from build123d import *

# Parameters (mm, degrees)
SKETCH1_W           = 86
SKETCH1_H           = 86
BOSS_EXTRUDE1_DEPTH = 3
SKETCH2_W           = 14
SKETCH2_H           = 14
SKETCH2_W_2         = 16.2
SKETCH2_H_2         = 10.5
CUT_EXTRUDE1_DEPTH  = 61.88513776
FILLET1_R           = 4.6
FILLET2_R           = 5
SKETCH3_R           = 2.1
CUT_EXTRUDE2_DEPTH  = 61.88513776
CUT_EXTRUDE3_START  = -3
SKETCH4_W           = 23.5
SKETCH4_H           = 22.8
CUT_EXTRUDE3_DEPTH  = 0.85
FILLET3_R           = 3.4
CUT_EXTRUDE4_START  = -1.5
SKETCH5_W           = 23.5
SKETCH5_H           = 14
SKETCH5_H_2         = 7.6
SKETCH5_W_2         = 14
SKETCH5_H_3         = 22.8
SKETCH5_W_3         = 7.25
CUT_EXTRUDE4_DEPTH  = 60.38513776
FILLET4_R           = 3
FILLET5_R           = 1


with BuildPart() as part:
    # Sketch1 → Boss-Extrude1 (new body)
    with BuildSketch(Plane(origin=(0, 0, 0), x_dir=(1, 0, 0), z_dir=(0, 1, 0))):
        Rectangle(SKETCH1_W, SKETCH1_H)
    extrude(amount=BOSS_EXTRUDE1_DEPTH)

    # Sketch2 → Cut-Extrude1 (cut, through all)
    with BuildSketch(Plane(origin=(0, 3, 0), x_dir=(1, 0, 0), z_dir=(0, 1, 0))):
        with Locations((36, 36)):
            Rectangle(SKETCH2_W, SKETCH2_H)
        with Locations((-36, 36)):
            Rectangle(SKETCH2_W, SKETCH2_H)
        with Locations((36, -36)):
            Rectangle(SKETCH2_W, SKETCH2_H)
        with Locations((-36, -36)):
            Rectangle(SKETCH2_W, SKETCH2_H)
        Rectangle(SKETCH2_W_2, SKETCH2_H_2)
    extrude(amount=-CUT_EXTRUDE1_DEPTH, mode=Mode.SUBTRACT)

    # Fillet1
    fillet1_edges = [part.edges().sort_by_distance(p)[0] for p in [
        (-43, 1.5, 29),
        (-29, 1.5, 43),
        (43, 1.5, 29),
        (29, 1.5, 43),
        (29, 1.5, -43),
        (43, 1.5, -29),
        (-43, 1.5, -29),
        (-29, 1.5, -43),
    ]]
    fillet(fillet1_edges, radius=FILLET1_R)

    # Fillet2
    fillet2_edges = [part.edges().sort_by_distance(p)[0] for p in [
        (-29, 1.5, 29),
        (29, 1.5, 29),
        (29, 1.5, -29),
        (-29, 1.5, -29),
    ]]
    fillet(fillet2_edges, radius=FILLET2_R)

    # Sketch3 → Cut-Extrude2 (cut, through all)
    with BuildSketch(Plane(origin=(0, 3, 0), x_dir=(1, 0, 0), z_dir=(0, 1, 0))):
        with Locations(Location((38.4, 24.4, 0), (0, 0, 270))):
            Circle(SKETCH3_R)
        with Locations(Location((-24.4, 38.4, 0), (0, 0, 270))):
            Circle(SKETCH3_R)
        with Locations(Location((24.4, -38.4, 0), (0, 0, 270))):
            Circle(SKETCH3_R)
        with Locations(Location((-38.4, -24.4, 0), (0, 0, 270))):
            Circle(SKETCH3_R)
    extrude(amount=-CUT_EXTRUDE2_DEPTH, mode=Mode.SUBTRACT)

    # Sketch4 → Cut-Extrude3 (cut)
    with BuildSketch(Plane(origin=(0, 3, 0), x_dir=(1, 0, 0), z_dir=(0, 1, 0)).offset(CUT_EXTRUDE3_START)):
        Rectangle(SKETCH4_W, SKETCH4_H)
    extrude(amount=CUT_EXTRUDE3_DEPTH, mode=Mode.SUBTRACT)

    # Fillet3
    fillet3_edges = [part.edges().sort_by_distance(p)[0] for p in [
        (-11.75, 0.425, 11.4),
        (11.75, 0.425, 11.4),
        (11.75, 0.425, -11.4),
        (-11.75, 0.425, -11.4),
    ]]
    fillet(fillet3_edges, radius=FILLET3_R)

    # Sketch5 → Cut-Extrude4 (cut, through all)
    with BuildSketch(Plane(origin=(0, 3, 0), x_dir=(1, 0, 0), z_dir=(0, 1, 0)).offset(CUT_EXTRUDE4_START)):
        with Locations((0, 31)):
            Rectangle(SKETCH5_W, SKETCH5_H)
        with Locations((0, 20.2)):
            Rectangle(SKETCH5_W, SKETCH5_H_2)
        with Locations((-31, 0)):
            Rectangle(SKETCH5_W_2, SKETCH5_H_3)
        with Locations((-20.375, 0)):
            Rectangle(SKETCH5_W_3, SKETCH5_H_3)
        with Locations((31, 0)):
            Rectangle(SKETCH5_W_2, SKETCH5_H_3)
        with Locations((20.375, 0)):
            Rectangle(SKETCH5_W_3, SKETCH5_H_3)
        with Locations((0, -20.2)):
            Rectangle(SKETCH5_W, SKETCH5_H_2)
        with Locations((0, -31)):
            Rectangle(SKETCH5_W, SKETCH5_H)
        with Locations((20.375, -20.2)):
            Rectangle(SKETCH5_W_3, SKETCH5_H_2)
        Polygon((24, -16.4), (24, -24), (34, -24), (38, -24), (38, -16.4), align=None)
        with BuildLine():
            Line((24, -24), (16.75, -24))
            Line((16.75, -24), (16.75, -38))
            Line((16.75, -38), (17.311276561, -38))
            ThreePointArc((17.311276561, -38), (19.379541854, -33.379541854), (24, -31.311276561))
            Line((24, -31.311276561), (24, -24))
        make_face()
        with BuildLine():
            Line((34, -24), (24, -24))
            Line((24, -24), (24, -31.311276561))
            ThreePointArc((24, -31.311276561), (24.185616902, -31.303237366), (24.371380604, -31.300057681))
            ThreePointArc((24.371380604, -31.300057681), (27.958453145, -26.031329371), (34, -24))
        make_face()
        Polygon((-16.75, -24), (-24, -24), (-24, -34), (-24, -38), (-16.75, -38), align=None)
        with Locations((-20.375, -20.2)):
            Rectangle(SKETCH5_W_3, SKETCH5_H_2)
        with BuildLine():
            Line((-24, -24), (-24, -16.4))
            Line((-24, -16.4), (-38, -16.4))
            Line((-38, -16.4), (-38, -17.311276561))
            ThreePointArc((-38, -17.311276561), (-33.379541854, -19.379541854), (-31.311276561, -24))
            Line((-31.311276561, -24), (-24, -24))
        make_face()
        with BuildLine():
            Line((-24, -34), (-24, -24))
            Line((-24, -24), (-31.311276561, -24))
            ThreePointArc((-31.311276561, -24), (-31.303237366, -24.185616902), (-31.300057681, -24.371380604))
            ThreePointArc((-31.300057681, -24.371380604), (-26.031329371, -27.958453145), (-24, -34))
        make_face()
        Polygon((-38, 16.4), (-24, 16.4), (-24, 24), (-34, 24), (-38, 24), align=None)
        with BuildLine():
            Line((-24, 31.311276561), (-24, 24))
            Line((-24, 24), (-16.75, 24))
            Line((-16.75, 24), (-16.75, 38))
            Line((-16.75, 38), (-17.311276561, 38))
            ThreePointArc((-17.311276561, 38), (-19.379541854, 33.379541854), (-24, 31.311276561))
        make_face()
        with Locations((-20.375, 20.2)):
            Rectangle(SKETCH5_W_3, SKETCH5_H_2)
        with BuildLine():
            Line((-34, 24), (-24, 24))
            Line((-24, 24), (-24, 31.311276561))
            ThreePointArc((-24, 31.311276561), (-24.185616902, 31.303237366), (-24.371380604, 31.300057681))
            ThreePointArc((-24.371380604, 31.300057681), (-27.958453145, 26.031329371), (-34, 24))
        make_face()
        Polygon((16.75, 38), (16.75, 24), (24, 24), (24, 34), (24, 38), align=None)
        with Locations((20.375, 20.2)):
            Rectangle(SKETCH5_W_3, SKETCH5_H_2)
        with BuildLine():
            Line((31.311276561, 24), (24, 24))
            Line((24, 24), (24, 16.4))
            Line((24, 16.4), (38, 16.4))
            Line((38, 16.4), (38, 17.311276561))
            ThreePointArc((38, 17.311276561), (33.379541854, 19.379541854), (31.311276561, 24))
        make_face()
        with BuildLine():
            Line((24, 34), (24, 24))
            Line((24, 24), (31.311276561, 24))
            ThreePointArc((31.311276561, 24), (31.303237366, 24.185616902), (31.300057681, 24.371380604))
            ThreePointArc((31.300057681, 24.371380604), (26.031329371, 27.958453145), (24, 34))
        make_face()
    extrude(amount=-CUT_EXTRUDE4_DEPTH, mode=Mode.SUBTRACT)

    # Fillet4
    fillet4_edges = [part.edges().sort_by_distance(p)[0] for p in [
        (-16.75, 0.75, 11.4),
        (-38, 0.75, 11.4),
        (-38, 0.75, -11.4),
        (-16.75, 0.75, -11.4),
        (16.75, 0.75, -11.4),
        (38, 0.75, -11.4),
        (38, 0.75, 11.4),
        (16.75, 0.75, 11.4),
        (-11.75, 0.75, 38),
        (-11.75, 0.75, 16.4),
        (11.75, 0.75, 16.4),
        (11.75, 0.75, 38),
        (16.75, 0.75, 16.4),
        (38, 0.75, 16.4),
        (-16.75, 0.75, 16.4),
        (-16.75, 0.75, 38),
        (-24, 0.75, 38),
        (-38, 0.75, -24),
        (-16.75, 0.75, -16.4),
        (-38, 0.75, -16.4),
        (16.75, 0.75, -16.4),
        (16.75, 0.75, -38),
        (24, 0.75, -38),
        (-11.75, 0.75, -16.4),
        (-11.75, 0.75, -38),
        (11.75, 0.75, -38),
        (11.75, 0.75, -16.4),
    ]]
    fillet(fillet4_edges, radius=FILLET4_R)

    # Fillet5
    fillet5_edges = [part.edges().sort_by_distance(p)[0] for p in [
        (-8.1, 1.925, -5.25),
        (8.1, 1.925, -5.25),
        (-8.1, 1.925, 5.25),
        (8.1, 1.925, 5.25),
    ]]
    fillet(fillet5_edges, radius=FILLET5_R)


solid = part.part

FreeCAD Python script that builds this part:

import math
import FreeCAD as App
import Part
import Sketcher
from FreeCAD import Vector
Q = App.Units.Quantity


def edges_at(feature, points):
    """Names of the edges that pass closest to the given points."""
    edges = feature.Shape.Edges
    near = lambda p: min(range(len(edges)), key=lambda i: edges[i].distToShape(Part.Vertex(*p))[0])
    return sorted({f"Edge{near(p) + 1}" for p in points})

doc = App.newDocument("Part")
body = doc.addObject("PartDesign::Body", "Body")

# Sketch on XZ plane
sketch1 = doc.addObject("Sketcher::SketchObject", "Sketch")
body.addObject(sketch1)
sketch1.AttachmentSupport = (doc.XZ_Plane, [""])
sketch1.MapMode = "FlatFace"
sketch1.addGeometry([
    Part.LineSegment(Vector(-43, -43, 0), Vector(-43, 43, 0)),
    Part.LineSegment(Vector(-43, 43, 0), Vector(43, 43, 0)),
    Part.LineSegment(Vector(43, 43, 0), Vector(43, -43, 0)),
    Part.LineSegment(Vector(43, -43, 0), Vector(-43, -43, 0)),
], False)
sketch1.addConstraint([
    Sketcher.Constraint("Coincident", 0, 2, 1, 1),
    Sketcher.Constraint("Coincident", 1, 2, 2, 1),
    Sketcher.Constraint("Coincident", 2, 2, 3, 1),
    Sketcher.Constraint("Coincident", 3, 2, 0, 1),
    Sketcher.Constraint("Vertical", 0),
    Sketcher.Constraint("Horizontal", 1),
    Sketcher.Constraint("Vertical", 2),
    Sketcher.Constraint("Horizontal", 3),
    Sketcher.Constraint("Symmetric", 0, 2, 2, 2, -1, 1),
    Sketcher.Constraint("Equal", 3, 0),
    Sketcher.Constraint("DistanceX", 1, 1, 1, 2, Q("86 mm")),
])
pad1 = doc.addObject("PartDesign::Pad", "Pad")
body.addObject(pad1)
pad1.Profile = sketch1
pad1.Length = 3
pad1.Reversed = True

# Sketch on XZ plane
sketch2 = doc.addObject("Sketcher::SketchObject", "Sketch001")
body.addObject(sketch2)
sketch2.AttachmentSupport = (doc.XZ_Plane, [""])
sketch2.MapMode = "FlatFace"
sketch2.AttachmentOffset = App.Placement(Vector(0, 0, -3), App.Rotation())
sketch2.addGeometry([
    Part.LineSegment(Vector(29, -43, 0), Vector(29, -29, 0)),  # 0
    Part.LineSegment(Vector(29, -29, 0), Vector(43, -29, 0)),  # 1
    Part.LineSegment(Vector(43, -29, 0), Vector(43, -43, 0)),  # 2
    Part.LineSegment(Vector(43, -43, 0), Vector(29, -43, 0)),  # 3
    Part.LineSegment(Vector(-43, -43, 0), Vector(-43, -29, 0)),  # 4
    Part.LineSegment(Vector(-43, -29, 0), Vector(-29, -29, 0)),  # 5
    Part.LineSegment(Vector(-29, -29, 0), Vector(-29, -43, 0)),  # 6
    Part.LineSegment(Vector(-29, -43, 0), Vector(-43, -43, 0)),  # 7
    Part.LineSegment(Vector(29, 29, 0), Vector(29, 43, 0)),  # 8
    Part.LineSegment(Vector(29, 43, 0), Vector(43, 43, 0)),  # 9
    Part.LineSegment(Vector(43, 43, 0), Vector(43, 29, 0)),  # 10
    Part.LineSegment(Vector(43, 29, 0), Vector(29, 29, 0)),  # 11
    Part.LineSegment(Vector(-43, 29, 0), Vector(-43, 43, 0)),  # 12
    Part.LineSegment(Vector(-43, 43, 0), Vector(-29, 43, 0)),  # 13
    Part.LineSegment(Vector(-29, 43, 0), Vector(-29, 29, 0)),  # 14
    Part.LineSegment(Vector(-29, 29, 0), Vector(-43, 29, 0)),  # 15
    Part.LineSegment(Vector(-8, -5, 0), Vector(-8, 5, 0)),  # 16
    Part.LineSegment(Vector(-8, 5, 0), Vector(8, 5, 0)),  # 17
    Part.LineSegment(Vector(8, 5, 0), Vector(8, -5, 0)),  # 18
    Part.LineSegment(Vector(8, -5, 0), Vector(-8, -5, 0)),  # 19
], False)
sketch2.addConstraint([
    Sketcher.Constraint("Coincident", 0, 2, 1, 1),
    Sketcher.Constraint("Coincident", 1, 2, 2, 1),
    Sketcher.Constraint("Coincident", 2, 2, 3, 1),
    Sketcher.Constraint("Coincident", 3, 2, 0, 1),
    Sketcher.Constraint("Coincident", 4, 2, 5, 1),
    Sketcher.Constraint("Coincident", 5, 2, 6, 1),
    Sketcher.Constraint("Coincident", 6, 2, 7, 1),
    Sketcher.Constraint("Coincident", 7, 2, 4, 1),
    Sketcher.Constraint("Coincident", 8, 2, 9, 1),
    Sketcher.Constraint("Coincident", 9, 2, 10, 1),
    Sketcher.Constraint("Coincident", 10, 2, 11, 1),
    Sketcher.Constraint("Coincident", 11, 2, 8, 1),
    Sketcher.Constraint("Coincident", 12, 2, 13, 1),
    Sketcher.Constraint("Coincident", 13, 2, 14, 1),
    Sketcher.Constraint("Coincident", 14, 2, 15, 1),
    Sketcher.Constraint("Coincident", 15, 2, 12, 1),
    Sketcher.Constraint("Coincident", 16, 2, 17, 1),
    Sketcher.Constraint("Coincident", 17, 2, 18, 1),
    Sketcher.Constraint("Coincident", 18, 2, 19, 1),
    Sketcher.Constraint("Coincident", 19, 2, 16, 1),
    Sketcher.Constraint("Vertical", 0),
    Sketcher.Constraint("Horizontal", 1),
    Sketcher.Constraint("Vertical", 2),
    Sketcher.Constraint("Horizontal", 3),
    Sketcher.Constraint("Vertical", 4),
    Sketcher.Constraint("Horizontal", 5),
    Sketcher.Constraint("Vertical", 6),
    Sketcher.Constraint("Horizontal", 7),
    Sketcher.Constraint("Vertical", 8),
    Sketcher.Constraint("Horizontal", 9),
    Sketcher.Constraint("Vertical", 10),
    Sketcher.Constraint("Horizontal", 11),
    Sketcher.Constraint("Vertical", 12),
    Sketcher.Constraint("Horizontal", 13),
    Sketcher.Constraint("Vertical", 14),
    Sketcher.Constraint("Horizontal", 15),
    Sketcher.Constraint("Vertical", 16),
    Sketcher.Constraint("Horizontal", 17),
    Sketcher.Constraint("Vertical", 18),
    Sketcher.Constraint("Horizontal", 19),
    Sketcher.Constraint("Symmetric", 6, 2, 8, 2, -1, 1),
    Sketcher.Constraint("Symmetric", 4, 2, 10, 2, -1, 1),
    Sketcher.Constraint("Symmetric", 2, 2, 12, 2, -1, 1),
    Sketcher.Constraint("Symmetric", 0, 2, 14, 2, -1, 1),
    Sketcher.Constraint("Symmetric", 16, 2, 18, 2, -1, 1),
    Sketcher.Constraint("Symmetric", 1, 2, 4, 2, -2),
    Sketcher.Constraint("Symmetric", 3, 2, 6, 2, -2),
    Sketcher.Constraint("Equal", 15, 0),
    Sketcher.Constraint("DistanceX", 1, 1, 1, 2, Q("14 mm")),
    Sketcher.Constraint("DistanceX", 17, 1, 17, 2, Q("16.2 mm")),
    Sketcher.Constraint("DistanceY", 16, 1, 16, 2, Q("10.5 mm")),
    Sketcher.Constraint("DistanceX", -1, 1, 0, 2, Q("29 mm")),
    Sketcher.Constraint("DistanceY", 0, 2, -1, 1, Q("29 mm")),
])
pocket1 = doc.addObject("PartDesign::Pocket", "Pocket")
body.addObject(pocket1)
pocket1.Profile = sketch2
pocket1.Type = "ThroughAll"
pocket1.Reversed = True
doc.recompute()

fillet = doc.addObject("PartDesign::Fillet", "Fillet")
body.addObject(fillet)
fillet.Base = (pocket1, edges_at(pocket1, [
    (-43, 1.5, 29),
    (-29, 1.5, 43),
    (43, 1.5, 29),
    (29, 1.5, 43),
    (29, 1.5, -43),
    (43, 1.5, -29),
    (-43, 1.5, -29),
    (-29, 1.5, -43),
]))
fillet.Radius = 4.6
doc.recompute()

fillet2 = doc.addObject("PartDesign::Fillet", "Fillet001")
body.addObject(fillet2)
fillet2.Base = (fillet, edges_at(fillet, [
    (-29, 1.5, 29),
    (29, 1.5, 29),
    (29, 1.5, -29),
    (-29, 1.5, -29),
]))
fillet2.Radius = 5

# Sketch on XZ plane
sketch3 = doc.addObject("Sketcher::SketchObject", "Sketch002")
body.addObject(sketch3)
sketch3.AttachmentSupport = (doc.XZ_Plane, [""])
sketch3.MapMode = "FlatFace"
sketch3.AttachmentOffset = App.Placement(Vector(0, 0, -3), App.Rotation())
sketch3.addGeometry([
    Part.Circle(Vector(38.4, -24.4, 0), Vector(0, 0, 1), 2.1),
    Part.Circle(Vector(-24.4, -38.4, 0), Vector(0, 0, 1), 2.1),
    Part.Circle(Vector(24.4, 38.4, 0), Vector(0, 0, 1), 2.1),
    Part.Circle(Vector(-38.4, 24.4, 0), Vector(0, 0, 1), 2.1),
], False)
sketch3.addConstraint([
    Sketcher.Constraint("Equal", 0, 1),
    Sketcher.Constraint("Equal", 1, 2),
    Sketcher.Constraint("Equal", 2, 3),
    Sketcher.Constraint("Symmetric", 1, 3, 2, 3, -1, 1),
    Sketcher.Constraint("Symmetric", 0, 3, 3, 3, -1, 1),
    Sketcher.Constraint("Diameter", 0, Q("4.2 mm")),
    Sketcher.Constraint("DistanceY", 1, 3, 0, 3, Q("14 mm")),
    Sketcher.Constraint("DistanceX", 2, 3, 0, 3, Q("14 mm")),
    Sketcher.Constraint("DistanceX", -1, 1, 0, 3, Q("38.4 mm")),
    Sketcher.Constraint("DistanceY", 0, 3, -1, 1, Q("24.4 mm")),
])
pocket2 = doc.addObject("PartDesign::Pocket", "Pocket001")
body.addObject(pocket2)
pocket2.Profile = sketch3
pocket2.Type = "ThroughAll"
pocket2.Reversed = True

# Sketch on XZ plane
sketch4 = doc.addObject("Sketcher::SketchObject", "Sketch003")
body.addObject(sketch4)
sketch4.AttachmentSupport = (doc.XZ_Plane, [""])
sketch4.MapMode = "FlatFace"
sketch4.addGeometry([
    Part.LineSegment(Vector(-12, -11, 0), Vector(-12, 11, 0)),
    Part.LineSegment(Vector(-12, 11, 0), Vector(12, 11, 0)),
    Part.LineSegment(Vector(12, 11, 0), Vector(12, -11, 0)),
    Part.LineSegment(Vector(12, -11, 0), Vector(-12, -11, 0)),
], False)
sketch4.addConstraint([
    Sketcher.Constraint("Coincident", 0, 2, 1, 1),
    Sketcher.Constraint("Coincident", 1, 2, 2, 1),
    Sketcher.Constraint("Coincident", 2, 2, 3, 1),
    Sketcher.Constraint("Coincident", 3, 2, 0, 1),
    Sketcher.Constraint("Vertical", 0),
    Sketcher.Constraint("Horizontal", 1),
    Sketcher.Constraint("Vertical", 2),
    Sketcher.Constraint("Horizontal", 3),
    Sketcher.Constraint("Symmetric", 0, 2, 2, 2, -1, 1),
    Sketcher.Constraint("DistanceX", 1, 1, 1, 2, Q("23.5 mm")),
    Sketcher.Constraint("DistanceY", 0, 1, 0, 2, Q("22.8 mm")),
])
pocket3 = doc.addObject("PartDesign::Pocket", "Pocket002")
body.addObject(pocket3)
pocket3.Profile = sketch4
pocket3.Length = 0.85
doc.recompute()

fillet3 = doc.addObject("PartDesign::Fillet", "Fillet002")
body.addObject(fillet3)
fillet3.Base = (pocket3, edges_at(pocket3, [
    (-11.75, 0.425, 11.4),
    (11.75, 0.425, 11.4),
    (11.75, 0.425, -11.4),
    (-11.75, 0.425, -11.4),
]))
fillet3.Radius = 3.4

# Sketch on XZ plane
sketch5 = doc.addObject("Sketcher::SketchObject", "Sketch004")
body.addObject(sketch5)
sketch5.AttachmentSupport = (doc.XZ_Plane, [""])
sketch5.MapMode = "FlatFace"
sketch5.AttachmentOffset = App.Placement(Vector(0, 0, -1.5), App.Rotation())
sketch5.addGeometry([
    Part.LineSegment(Vector(-11.75, -38, 0), Vector(-11.75, -16.4, 0)),  # 0
    Part.LineSegment(Vector(-11.75, -16.4, 0), Vector(11.75, -16.4, 0)),  # 1
    Part.LineSegment(Vector(11.75, -16.4, 0), Vector(11.75, -38, 0)),  # 2
    Part.LineSegment(Vector(11.75, -38, 0), Vector(-11.75, -38, 0)),  # 3
    Part.LineSegment(Vector(-38, -11.4, 0), Vector(-38, 11.4, 0)),  # 4
    Part.LineSegment(Vector(-38, 11.4, 0), Vector(-16.75, 11.4, 0)),  # 5
    Part.LineSegment(Vector(-16.75, 11.4, 0), Vector(-16.75, -11.4, 0)),  # 6
    Part.LineSegment(Vector(-16.75, -11.4, 0), Vector(-38, -11.4, 0)),  # 7
    Part.LineSegment(Vector(38, 11.4, 0), Vector(38, -11.4, 0)),  # 8
    Part.LineSegment(Vector(38, -11.4, 0), Vector(16.75, -11.4, 0)),  # 9
    Part.LineSegment(Vector(16.75, -11.4, 0), Vector(16.75, 11.4, 0)),  # 10
    Part.LineSegment(Vector(16.75, 11.4, 0), Vector(38, 11.4, 0)),  # 11
    Part.LineSegment(Vector(-11.75, 16.4, 0), Vector(-11.75, 38, 0)),  # 12
    Part.LineSegment(Vector(-11.75, 38, 0), Vector(11.75, 38, 0)),  # 13
    Part.LineSegment(Vector(11.75, 38, 0), Vector(11.75, 16.4, 0)),  # 14
    Part.LineSegment(Vector(11.75, 16.4, 0), Vector(-11.75, 16.4, 0)),  # 15
    Part.LineSegment(Vector(16.75, 16.4, 0), Vector(16.75, 38, 0)),  # 16
    Part.LineSegment(Vector(16.75, 38, 0), Vector(17.31, 38, 0)),  # 17
    Part.ArcOfCircle(Part.Circle(Vector(24.4, 38.4, 0), Vector(0, 0, 1), 7.1), math.radians(-177), math.radians(-93)),  # 18
    Part.ArcOfCircle(Part.Circle(Vector(24.4, 38.4, 0), Vector(0, 0, 1), 7.1), math.radians(-93.23), math.radians(-90.23)),  # 19
    Part.ArcOfCircle(Part.Circle(Vector(34, 34, 0), Vector(0, 0, 1), 10), math.radians(-164), math.radians(-90)),  # 20
    Part.LineSegment(Vector(34, 24, 0), Vector(38, 24, 0)),  # 21
    Part.LineSegment(Vector(38, 24, 0), Vector(38, 16.4, 0)),  # 22
    Part.LineSegment(Vector(38, 16.4, 0), Vector(16.75, 16.4, 0)),  # 23
    Part.LineSegment(Vector(-24, 38, 0), Vector(-16.75, 38, 0)),  # 24
    Part.LineSegment(Vector(-16.75, 38, 0), Vector(-16.75, 16.4, 0)),  # 25
    Part.LineSegment(Vector(-16.75, 16.4, 0), Vector(-38, 16.4, 0)),  # 26
    Part.LineSegment(Vector(-38, 16.4, 0), Vector(-38, 17.31, 0)),  # 27
    Part.ArcOfCircle(Part.Circle(Vector(-38.4, 24.4, 0), Vector(0, 0, 1), 7.1), math.radians(-87), math.radians(-3)),  # 28
    Part.ArcOfCircle(Part.Circle(Vector(-38.4, 24.4, 0), Vector(0, 0, 1), 7.1), math.radians(-3.23), math.radians(-0.23)),  # 29
    Part.ArcOfCircle(Part.Circle(Vector(-34, 34, 0), Vector(0, 0, 1), 10), math.radians(-74), math.radians(0)),  # 30
    Part.LineSegment(Vector(-24, 34, 0), Vector(-24, 38, 0)),  # 31
    Part.LineSegment(Vector(-38, -16.4, 0), Vector(-16.75, -16.4, 0)),  # 32
    Part.LineSegment(Vector(-16.75, -16.4, 0), Vector(-16.75, -38, 0)),  # 33
    Part.LineSegment(Vector(-16.75, -38, 0), Vector(-17.31, -38, 0)),  # 34
    Part.ArcOfCircle(Part.Circle(Vector(-24.4, -38.4, 0), Vector(0, 0, 1), 7.1), math.radians(3), math.radians(87)),  # 35
    Part.ArcOfCircle(Part.Circle(Vector(-24.4, -38.4, 0), Vector(0, 0, 1), 7.1), math.radians(86.77), math.radians(89.77)),  # 36
    Part.ArcOfCircle(Part.Circle(Vector(-34, -34, 0), Vector(0, 0, 1), 10), math.radians(16), math.radians(90)),  # 37
    Part.LineSegment(Vector(-34, -24, 0), Vector(-38, -24, 0)),  # 38
    Part.LineSegment(Vector(-38, -24, 0), Vector(-38, -16.4, 0)),  # 39
    Part.LineSegment(Vector(16.75, -38, 0), Vector(16.75, -16.4, 0)),  # 40
    Part.LineSegment(Vector(16.75, -16.4, 0), Vector(38, -16.4, 0)),  # 41
    Part.LineSegment(Vector(38, -16.4, 0), Vector(38, -17.31, 0)),  # 42
    Part.ArcOfCircle(Part.Circle(Vector(38.4, -24.4, 0), Vector(0, 0, 1), 7.1), math.radians(93), math.radians(177)),  # 43
    Part.ArcOfCircle(Part.Circle(Vector(38.4, -24.4, 0), Vector(0, 0, 1), 7.1), math.radians(176.77), math.radians(179.77)),  # 44
    Part.ArcOfCircle(Part.Circle(Vector(34, -34, 0), Vector(0, 0, 1), 10), math.radians(106), math.radians(180)),  # 45
    Part.LineSegment(Vector(24, -34, 0), Vector(24, -38, 0)),  # 46
    Part.LineSegment(Vector(24, -38, 0), Vector(16.75, -38, 0)),  # 47
], False)
sketch5.addConstraint([
    Sketcher.Constraint("Coincident", 0, 2, 1, 1),
    Sketcher.Constraint("Coincident", 1, 2, 2, 1),
    Sketcher.Constraint("Coincident", 2, 2, 3, 1),
    Sketcher.Constraint("Coincident", 3, 2, 0, 1),
    Sketcher.Constraint("Coincident", 4, 2, 5, 1),
    Sketcher.Constraint("Coincident", 5, 2, 6, 1),
    Sketcher.Constraint("Coincident", 6, 2, 7, 1),
    Sketcher.Constraint("Coincident", 7, 2, 4, 1),
    Sketcher.Constraint("Coincident", 8, 2, 9, 1),
    Sketcher.Constraint("Coincident", 9, 2, 10, 1),
    Sketcher.Constraint("Coincident", 10, 2, 11, 1),
    Sketcher.Constraint("Coincident", 11, 2, 8, 1),
    Sketcher.Constraint("Coincident", 12, 2, 13, 1),
    Sketcher.Constraint("Coincident", 13, 2, 14, 1),
    Sketcher.Constraint("Coincident", 14, 2, 15, 1),
    Sketcher.Constraint("Coincident", 15, 2, 12, 1),
    Sketcher.Constraint("Coincident", 16, 2, 17, 1),
    Sketcher.Constraint("Coincident", 17, 2, 18, 1),
    Sketcher.Constraint("Tangent", 18, 2, 19, 1),
    Sketcher.Constraint("Coincident", 19, 2, 20, 1),
    Sketcher.Constraint("Tangent", 20, 2, 21, 1),
    Sketcher.Constraint("Coincident", 21, 2, 22, 1),
    Sketcher.Constraint("Coincident", 22, 2, 23, 1),
    Sketcher.Constraint("Coincident", 23, 2, 16, 1),
    Sketcher.Constraint("Coincident", 24, 2, 25, 1),
    Sketcher.Constraint("Coincident", 25, 2, 26, 1),
    Sketcher.Constraint("Coincident", 26, 2, 27, 1),
    Sketcher.Constraint("Coincident", 27, 2, 28, 1),
    Sketcher.Constraint("Tangent", 28, 2, 29, 1),
    Sketcher.Constraint("Coincident", 29, 2, 30, 1),
    Sketcher.Constraint("Tangent", 30, 2, 31, 1),
    Sketcher.Constraint("Coincident", 31, 2, 24, 1),
    Sketcher.Constraint("Coincident", 32, 2, 33, 1),
    Sketcher.Constraint("Coincident", 33, 2, 34, 1),
    Sketcher.Constraint("Coincident", 34, 2, 35, 1),
    Sketcher.Constraint("Tangent", 35, 2, 36, 1),
    Sketcher.Constraint("Coincident", 36, 2, 37, 1),
    Sketcher.Constraint("Tangent", 37, 2, 38, 1),
    Sketcher.Constraint("Coincident", 38, 2, 39, 1),
    Sketcher.Constraint("Coincident", 39, 2, 32, 1),
    Sketcher.Constraint("Coincident", 40, 2, 41, 1),
    Sketcher.Constraint("Coincident", 41, 2, 42, 1),
    Sketcher.Constraint("Coincident", 42, 2, 43, 1),
    Sketcher.Constraint("Tangent", 43, 2, 44, 1),
    Sketcher.Constraint("Coincident", 44, 2, 45, 1),
    Sketcher.Constraint("Tangent", 45, 2, 46, 1),
    Sketcher.Constraint("Coincident", 46, 2, 47, 1),
    Sketcher.Constraint("Coincident", 47, 2, 40, 1),
    Sketcher.Constraint("Vertical", 0),
    Sketcher.Constraint("Horizontal", 1),
    Sketcher.Constraint("Vertical", 2),
    Sketcher.Constraint("Horizontal", 3),
    Sketcher.Constraint("Vertical", 4),
    Sketcher.Constraint("Horizontal", 5),
    Sketcher.Constraint("Vertical", 6),
    Sketcher.Constraint("Horizontal", 7),
    Sketcher.Constraint("Vertical", 8),
    Sketcher.Constraint("Horizontal", 9),
    Sketcher.Constraint("Vertical", 10),
    Sketcher.Constraint("Horizontal", 11),
    Sketcher.Constraint("Vertical", 12),
    Sketcher.Constraint("Horizontal", 13),
    Sketcher.Constraint("Vertical", 14),
    Sketcher.Constraint("Horizontal", 15),
    Sketcher.Constraint("Vertical", 16),
    Sketcher.Constraint("Horizontal", 17),
    Sketcher.Constraint("Horizontal", 21),
    Sketcher.Constraint("Vertical", 22),
    Sketcher.Constraint("Horizontal", 23),
    Sketcher.Constraint("Horizontal", 24),
    Sketcher.Constraint("Vertical", 25),
    Sketcher.Constraint("Horizontal", 26),
    Sketcher.Constraint("Vertical", 27),
    Sketcher.Constraint("Vertical", 31),
    Sketcher.Constraint("Horizontal", 32),
    Sketcher.Constraint("Vertical", 33),
    Sketcher.Constraint("Horizontal", 34),
    Sketcher.Constraint("Horizontal", 38),
    Sketcher.Constraint("Vertical", 39),
    Sketcher.Constraint("Vertical", 40),
    Sketcher.Constraint("Horizontal", 41),
    Sketcher.Constraint("Vertical", 42),
    Sketcher.Constraint("Vertical", 46),
    Sketcher.Constraint("Horizontal", 47),
    Sketcher.Constraint("Equal", 18, 19),
    Sketcher.Constraint("Equal", 19, 28),
    Sketcher.Constraint("Equal", 28, 29),
    Sketcher.Constraint("Equal", 20, 30),
    Sketcher.Constraint("Equal", 29, 35),
    Sketcher.Constraint("Equal", 35, 36),
    Sketcher.Constraint("Equal", 30, 37),
    Sketcher.Constraint("Equal", 36, 43),
    Sketcher.Constraint("Equal", 43, 44),
    Sketcher.Constraint("Equal", 37, 45),
    Sketcher.Constraint("Symmetric", 18, 3, 35, 3, -1, 1),
    Sketcher.Constraint("Symmetric", 20, 3, 37, 3, -1, 1),
    Sketcher.Constraint("Symmetric", 28, 3, 43, 3, -1, 1),
    Sketcher.Constraint("Symmetric", 30, 3, 45, 3, -1, 1),
    Sketcher.Constraint("Symmetric", 4, 2, 8, 2, -1, 1),
    Sketcher.Constraint("Symmetric", 6, 2, 10, 2, -1, 1),
    Sketcher.Constraint("Symmetric", 2, 2, 12, 2, -1, 1),
    Sketcher.Constraint("Symmetric", 0, 2, 14, 2, -1, 1),
    Sketcher.Constraint("Symmetric", 23, 2, 32, 2, -1, 1),
    Sketcher.Constraint("Symmetric", 25, 2, 40, 2, -1, 1),
    Sketcher.Constraint("Symmetric", 20, 3, 30, 3, -2),
    Sketcher.Constraint("Symmetric", 16, 2, 24, 2, -2),
    Sketcher.Constraint("Symmetric", 22, 2, 26, 2, -2),
    Sketcher.Constraint("Horizontal", 7, 2, 8, 2),
    Sketcher.Constraint("Horizontal", 13, 2, 16, 2),
    Sketcher.Constraint("Horizontal", 15, 2, 22, 2),
    Sketcher.Constraint("Horizontal", 21, 2, 28, 2),
    Sketcher.Constraint("Horizontal", 3, 2, 33, 2),
    Sketcher.Constraint("Horizontal", 38, 2, 43, 2),
    Sketcher.Constraint("Horizontal", 34, 2, 46, 2),
    Sketcher.Constraint("Vertical", 3, 2, 12, 2),
    Sketcher.Constraint("Vertical", 10, 2, 16, 2),
    Sketcher.Constraint("Vertical", 11, 2, 21, 2),
    Sketcher.Constraint("Vertical", 31, 2, 35, 2),
    Sketcher.Constraint("Vertical", 27, 2, 38, 2),
    Sketcher.Constraint("Vertical", 22, 2, 41, 2),
    Sketcher.Constraint("Vertical", 18, 2, 45, 2),
    Sketcher.Constraint("Equal", 38, 31),
    Sketcher.Constraint("Radius", 20, Q("10 mm")),
    Sketcher.Constraint("Radius", 18, Q("7.1 mm")),
    Sketcher.Constraint("DistanceX", 21, 1, 21, 2, Q("4 mm")),
    Sketcher.Constraint("DistanceX", 1, 1, 1, 2, Q("23.5 mm")),
    Sketcher.Constraint("DistanceY", 0, 1, 0, 2, Q("21.6 mm")),
    Sketcher.Constraint("DistanceY", 4, 1, 4, 2, Q("22.8 mm")),
    Sketcher.Constraint("DistanceX", -1, 1, 20, 3, Q("34 mm")),
    Sketcher.Constraint("DistanceY", -1, 1, 20, 3, Q("34 mm")),
    Sketcher.Constraint("DistanceY", 28, 3, 18, 3, Q("14 mm")),
    Sketcher.Constraint("DistanceX", 28, 3, 35, 3, Q("14 mm")),
    Sketcher.Constraint("DistanceY", 35, 3, 0, 2, Q("22 mm")),
    Sketcher.Constraint("DistanceX", 5, 2, 0, 2, Q("5 mm")),
    Sketcher.Constraint("DistanceX", -1, 1, 18, 3, Q("24.4 mm")),
])
pocket4 = doc.addObject("PartDesign::Pocket", "Pocket003")
body.addObject(pocket4)
pocket4.Profile = sketch5
pocket4.Type = "ThroughAll"
pocket4.Reversed = True
doc.recompute()

fillet4 = doc.addObject("PartDesign::Fillet", "Fillet003")
body.addObject(fillet4)
fillet4.Base = (pocket4, edges_at(pocket4, [
    (-16.75, 0.75, 11.4),
    (-38, 0.75, 11.4),
    (-38, 0.75, -11.4),
    (-16.75, 0.75, -11.4),
    (16.75, 0.75, -11.4),
    (38, 0.75, -11.4),
    (38, 0.75, 11.4),
    (16.75, 0.75, 11.4),
    (-11.75, 0.75, 38),
    (-11.75, 0.75, 16.4),
    (11.75, 0.75, 16.4),
    (11.75, 0.75, 38),
    (16.75, 0.75, 16.4),
    (38, 0.75, 16.4),
    (-16.75, 0.75, 16.4),
    (-16.75, 0.75, 38),
    (-24, 0.75, 38),
    (-38, 0.75, -24),
    (-16.75, 0.75, -16.4),
    (-38, 0.75, -16.4),
    (16.75, 0.75, -16.4),
    (16.75, 0.75, -38),
    (24, 0.75, -38),
    (-11.75, 0.75, -16.4),
    (-11.75, 0.75, -38),
    (11.75, 0.75, -38),
    (11.75, 0.75, -16.4),
]))
fillet4.Radius = 3
doc.recompute()

fillet5 = doc.addObject("PartDesign::Fillet", "Fillet004")
body.addObject(fillet5)
fillet5.Base = (fillet4, edges_at(fillet4, [
    (-8.1, 1.925, -5.25),
    (8.1, 1.925, -5.25),
    (-8.1, 1.925, 5.25),
    (8.1, 1.925, 5.25),
]))
fillet5.Radius = 1

doc.recompute()
